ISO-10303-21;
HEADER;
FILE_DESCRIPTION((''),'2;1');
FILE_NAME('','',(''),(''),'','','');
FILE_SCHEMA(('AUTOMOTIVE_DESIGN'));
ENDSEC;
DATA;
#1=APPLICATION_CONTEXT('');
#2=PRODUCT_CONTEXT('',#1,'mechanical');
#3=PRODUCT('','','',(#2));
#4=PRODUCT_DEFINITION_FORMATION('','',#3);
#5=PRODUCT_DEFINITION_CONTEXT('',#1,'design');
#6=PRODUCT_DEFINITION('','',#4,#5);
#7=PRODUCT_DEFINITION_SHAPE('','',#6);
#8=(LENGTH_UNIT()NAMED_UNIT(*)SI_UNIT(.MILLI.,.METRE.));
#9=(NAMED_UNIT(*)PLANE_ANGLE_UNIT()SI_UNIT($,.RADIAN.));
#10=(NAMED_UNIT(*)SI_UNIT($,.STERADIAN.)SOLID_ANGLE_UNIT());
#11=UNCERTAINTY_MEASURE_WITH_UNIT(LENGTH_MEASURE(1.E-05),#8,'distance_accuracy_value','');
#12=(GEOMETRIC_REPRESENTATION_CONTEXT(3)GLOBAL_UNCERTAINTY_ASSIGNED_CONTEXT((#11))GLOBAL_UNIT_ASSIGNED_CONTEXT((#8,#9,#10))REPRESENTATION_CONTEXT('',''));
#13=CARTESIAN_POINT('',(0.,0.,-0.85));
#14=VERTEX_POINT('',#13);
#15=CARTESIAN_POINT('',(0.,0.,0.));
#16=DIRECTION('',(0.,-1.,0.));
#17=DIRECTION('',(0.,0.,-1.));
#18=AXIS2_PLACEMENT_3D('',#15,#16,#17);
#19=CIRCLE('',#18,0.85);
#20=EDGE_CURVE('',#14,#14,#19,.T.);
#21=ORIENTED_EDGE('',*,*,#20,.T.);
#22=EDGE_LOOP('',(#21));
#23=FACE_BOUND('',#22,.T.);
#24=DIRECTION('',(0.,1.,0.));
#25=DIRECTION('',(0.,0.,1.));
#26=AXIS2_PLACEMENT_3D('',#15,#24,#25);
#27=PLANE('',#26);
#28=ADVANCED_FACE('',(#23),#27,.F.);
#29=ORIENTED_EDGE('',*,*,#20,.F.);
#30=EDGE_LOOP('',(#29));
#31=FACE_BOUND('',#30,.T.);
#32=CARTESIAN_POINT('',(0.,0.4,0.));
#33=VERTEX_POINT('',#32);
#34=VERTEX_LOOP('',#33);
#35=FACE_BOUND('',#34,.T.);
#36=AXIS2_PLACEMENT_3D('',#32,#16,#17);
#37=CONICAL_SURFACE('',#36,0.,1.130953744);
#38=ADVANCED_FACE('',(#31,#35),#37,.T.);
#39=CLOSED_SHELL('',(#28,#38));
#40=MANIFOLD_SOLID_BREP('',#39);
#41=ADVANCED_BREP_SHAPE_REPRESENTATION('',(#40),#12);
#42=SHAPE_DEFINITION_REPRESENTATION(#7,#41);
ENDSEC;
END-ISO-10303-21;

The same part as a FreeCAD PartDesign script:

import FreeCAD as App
import Part
import Sketcher
Q = App.Units.Quantity

doc = App.newDocument("Part")
body = doc.addObject("PartDesign::Body", "Body")

# Sketch on XY plane
sketch1 = body.newObject("Sketcher::SketchObject", "Sketch")
sketch1.AttachmentSupport = (doc.getObject("XY_Plane"), [""])
sketch1.MapMode = "FlatFace"
sketch1.addGeometry(Part.LineSegment(App.Vector(0, 0, 0), App.Vector(0, 0.4, 0)), False)
sketch1.addGeometry(Part.LineSegment(App.Vector(0, 0.4, 0), App.Vector(-0.85, 0, 0)), False)
sketch1.addGeometry(Part.LineSegment(App.Vector(-0.85, 0, 0), App.Vector(0, 0, 0)), False)
sketch1.addConstraint(Sketcher.Constraint("Coincident", 0, 2, 1, 1))
sketch1.addConstraint(Sketcher.Constraint("Coincident", 1, 2, 2, 1))
sketch1.addConstraint(Sketcher.Constraint("Coincident", 2, 2, 0, 1))
sketch1.addConstraint(Sketcher.Constraint("Vertical", 0))
sketch1.addConstraint(Sketcher.Constraint("Horizontal", 2))
sketch1.addConstraint(Sketcher.Constraint("Coincident", 2, 2, -1, 1))
sketch1.addConstraint(Sketcher.Constraint("DistanceY", 0, 1, 0, 2, Q("0.4 mm")))
sketch1.addConstraint(Sketcher.Constraint("DistanceX", 2, 1, 2, 2, Q("0.85 mm")))
revolution = body.newObject("PartDesign::Revolution", "Revolution")
revolution.Profile = sketch1
revolution.ReferenceAxis = (sketch1, ["V_Axis"])
revolution.Angle = 360

doc.recompute()
